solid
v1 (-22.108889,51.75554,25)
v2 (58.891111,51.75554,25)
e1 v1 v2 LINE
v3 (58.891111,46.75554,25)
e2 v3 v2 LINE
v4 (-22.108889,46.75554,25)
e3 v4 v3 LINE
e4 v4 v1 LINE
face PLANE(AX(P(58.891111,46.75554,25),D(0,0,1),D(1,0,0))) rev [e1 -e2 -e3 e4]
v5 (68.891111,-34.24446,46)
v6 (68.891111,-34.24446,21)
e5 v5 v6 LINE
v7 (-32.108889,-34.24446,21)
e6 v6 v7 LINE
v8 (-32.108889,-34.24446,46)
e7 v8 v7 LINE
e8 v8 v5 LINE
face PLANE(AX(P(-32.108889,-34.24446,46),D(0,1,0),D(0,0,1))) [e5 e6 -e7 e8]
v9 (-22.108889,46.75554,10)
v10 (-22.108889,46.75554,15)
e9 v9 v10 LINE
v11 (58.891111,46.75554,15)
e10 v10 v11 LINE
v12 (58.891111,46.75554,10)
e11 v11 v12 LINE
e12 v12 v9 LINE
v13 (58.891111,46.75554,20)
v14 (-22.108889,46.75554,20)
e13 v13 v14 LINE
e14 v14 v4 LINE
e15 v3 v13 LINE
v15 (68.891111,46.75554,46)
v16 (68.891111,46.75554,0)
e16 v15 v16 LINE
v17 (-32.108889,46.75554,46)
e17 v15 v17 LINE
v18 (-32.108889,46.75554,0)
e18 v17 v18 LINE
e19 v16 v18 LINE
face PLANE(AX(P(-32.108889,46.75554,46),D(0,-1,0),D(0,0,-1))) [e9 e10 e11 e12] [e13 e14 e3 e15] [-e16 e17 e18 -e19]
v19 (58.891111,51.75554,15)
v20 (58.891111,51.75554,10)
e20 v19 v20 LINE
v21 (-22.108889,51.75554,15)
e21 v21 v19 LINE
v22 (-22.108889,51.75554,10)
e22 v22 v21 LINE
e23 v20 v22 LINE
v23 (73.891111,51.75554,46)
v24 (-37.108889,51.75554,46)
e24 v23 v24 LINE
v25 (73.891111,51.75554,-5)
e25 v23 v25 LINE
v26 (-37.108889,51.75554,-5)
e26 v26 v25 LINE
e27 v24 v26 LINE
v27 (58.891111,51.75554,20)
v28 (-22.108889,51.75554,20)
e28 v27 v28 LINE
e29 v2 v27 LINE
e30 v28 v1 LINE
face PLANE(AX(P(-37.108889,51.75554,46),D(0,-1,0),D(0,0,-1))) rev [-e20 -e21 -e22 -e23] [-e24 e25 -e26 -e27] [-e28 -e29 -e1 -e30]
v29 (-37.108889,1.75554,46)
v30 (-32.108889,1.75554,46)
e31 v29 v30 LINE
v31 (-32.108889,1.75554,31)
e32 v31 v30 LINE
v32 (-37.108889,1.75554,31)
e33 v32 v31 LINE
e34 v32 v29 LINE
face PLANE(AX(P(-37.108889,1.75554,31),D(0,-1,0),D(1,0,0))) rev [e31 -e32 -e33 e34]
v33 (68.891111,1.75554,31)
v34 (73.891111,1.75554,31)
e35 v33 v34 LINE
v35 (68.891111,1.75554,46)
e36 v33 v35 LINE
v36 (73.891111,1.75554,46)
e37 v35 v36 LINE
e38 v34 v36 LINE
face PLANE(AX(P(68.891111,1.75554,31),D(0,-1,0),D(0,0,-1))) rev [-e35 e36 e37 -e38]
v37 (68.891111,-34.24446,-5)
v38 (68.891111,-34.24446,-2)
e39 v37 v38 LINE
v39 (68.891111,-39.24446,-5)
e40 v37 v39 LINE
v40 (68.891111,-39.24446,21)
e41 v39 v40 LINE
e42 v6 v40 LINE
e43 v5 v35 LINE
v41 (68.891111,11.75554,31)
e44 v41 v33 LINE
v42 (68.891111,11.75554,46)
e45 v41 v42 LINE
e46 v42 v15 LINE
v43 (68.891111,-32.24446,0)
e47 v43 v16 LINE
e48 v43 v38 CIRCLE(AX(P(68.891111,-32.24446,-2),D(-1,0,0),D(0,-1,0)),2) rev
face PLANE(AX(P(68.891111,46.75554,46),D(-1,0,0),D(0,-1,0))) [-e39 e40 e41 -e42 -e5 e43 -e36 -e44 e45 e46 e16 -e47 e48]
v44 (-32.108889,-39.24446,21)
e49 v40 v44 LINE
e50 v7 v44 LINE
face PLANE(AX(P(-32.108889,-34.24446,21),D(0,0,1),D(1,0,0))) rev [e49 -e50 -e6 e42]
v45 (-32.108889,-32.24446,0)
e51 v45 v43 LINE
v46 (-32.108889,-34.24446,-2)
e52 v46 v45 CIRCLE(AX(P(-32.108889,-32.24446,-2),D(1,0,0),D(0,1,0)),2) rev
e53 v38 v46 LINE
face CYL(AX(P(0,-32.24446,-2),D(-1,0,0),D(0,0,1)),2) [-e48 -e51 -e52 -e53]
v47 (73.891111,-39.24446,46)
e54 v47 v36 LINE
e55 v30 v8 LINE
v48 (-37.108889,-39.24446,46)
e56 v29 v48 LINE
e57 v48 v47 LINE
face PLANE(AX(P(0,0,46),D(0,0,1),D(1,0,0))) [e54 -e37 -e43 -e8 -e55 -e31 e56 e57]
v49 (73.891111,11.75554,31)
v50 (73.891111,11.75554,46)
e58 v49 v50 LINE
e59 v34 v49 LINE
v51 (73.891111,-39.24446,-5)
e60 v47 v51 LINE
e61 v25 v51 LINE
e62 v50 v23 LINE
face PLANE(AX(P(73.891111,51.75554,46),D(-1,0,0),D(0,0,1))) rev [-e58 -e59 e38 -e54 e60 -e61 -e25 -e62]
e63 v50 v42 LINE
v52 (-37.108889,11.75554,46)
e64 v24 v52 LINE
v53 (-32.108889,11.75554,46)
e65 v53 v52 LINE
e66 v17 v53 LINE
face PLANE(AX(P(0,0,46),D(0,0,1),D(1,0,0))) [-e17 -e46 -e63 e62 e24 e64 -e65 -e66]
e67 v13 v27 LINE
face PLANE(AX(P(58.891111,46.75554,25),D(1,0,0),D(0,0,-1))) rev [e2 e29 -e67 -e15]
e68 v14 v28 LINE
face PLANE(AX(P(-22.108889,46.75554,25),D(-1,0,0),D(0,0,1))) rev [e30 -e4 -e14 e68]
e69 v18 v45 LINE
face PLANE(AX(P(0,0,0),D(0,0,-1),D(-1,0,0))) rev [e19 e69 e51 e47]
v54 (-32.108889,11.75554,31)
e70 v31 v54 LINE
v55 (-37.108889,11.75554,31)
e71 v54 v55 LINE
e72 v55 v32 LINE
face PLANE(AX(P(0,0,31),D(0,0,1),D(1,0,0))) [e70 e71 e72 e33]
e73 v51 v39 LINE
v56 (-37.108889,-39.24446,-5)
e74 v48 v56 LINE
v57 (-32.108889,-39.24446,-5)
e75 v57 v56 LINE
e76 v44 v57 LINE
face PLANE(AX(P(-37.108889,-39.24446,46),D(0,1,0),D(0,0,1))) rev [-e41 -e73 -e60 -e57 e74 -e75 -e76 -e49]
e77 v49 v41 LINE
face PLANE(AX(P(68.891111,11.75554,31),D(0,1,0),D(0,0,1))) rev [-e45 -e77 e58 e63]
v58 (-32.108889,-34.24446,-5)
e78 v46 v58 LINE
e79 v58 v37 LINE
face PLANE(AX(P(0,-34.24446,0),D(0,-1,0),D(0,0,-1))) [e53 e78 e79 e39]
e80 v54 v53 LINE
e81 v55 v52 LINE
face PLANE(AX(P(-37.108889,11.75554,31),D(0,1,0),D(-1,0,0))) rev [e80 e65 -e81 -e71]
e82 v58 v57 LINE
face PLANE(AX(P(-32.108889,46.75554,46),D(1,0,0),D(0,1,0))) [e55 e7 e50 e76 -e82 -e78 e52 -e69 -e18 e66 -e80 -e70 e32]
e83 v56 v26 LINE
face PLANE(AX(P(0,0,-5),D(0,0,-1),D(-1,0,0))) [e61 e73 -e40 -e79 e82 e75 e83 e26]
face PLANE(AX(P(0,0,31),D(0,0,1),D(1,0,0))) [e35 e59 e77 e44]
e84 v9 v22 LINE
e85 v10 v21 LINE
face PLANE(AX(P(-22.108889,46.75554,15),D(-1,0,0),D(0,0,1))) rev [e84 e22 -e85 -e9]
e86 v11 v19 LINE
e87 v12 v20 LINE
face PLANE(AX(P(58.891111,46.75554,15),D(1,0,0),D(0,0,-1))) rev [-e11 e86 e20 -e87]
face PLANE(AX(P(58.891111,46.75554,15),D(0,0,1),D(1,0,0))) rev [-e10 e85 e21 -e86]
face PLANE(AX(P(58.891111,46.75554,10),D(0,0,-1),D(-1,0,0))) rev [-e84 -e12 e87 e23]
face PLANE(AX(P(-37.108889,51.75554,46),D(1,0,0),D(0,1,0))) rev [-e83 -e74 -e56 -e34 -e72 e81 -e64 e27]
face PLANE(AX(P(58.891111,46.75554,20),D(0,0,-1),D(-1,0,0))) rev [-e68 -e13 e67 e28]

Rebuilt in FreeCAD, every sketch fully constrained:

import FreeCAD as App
import Part
import Sketcher

V = App.Vector


def edges_at(feature, points):
    """Names of the edges that pass closest to the given points."""
    edges = feature.Shape.Edges
    near = lambda p: min(range(len(edges)), key=lambda i: edges[i].distToShape(Part.Vertex(*p))[0])
    return sorted({f"Edge{near(p) + 1}" for p in points})


def add_polygon(sketch, points):
    """Adds a closed chain of lines whose ends are joined by coincident constraints."""
    first, n = sketch.GeometryCount, len(points)
    for a, b in zip(points, points[1:] + points[:1]):
        sketch.addGeometry(Part.LineSegment(App.Vector(*a, 0), App.Vector(*b, 0)), False)
    for i in range(n):
        sketch.addConstraint(Sketcher.Constraint("Coincident", first + i, 2, first + (i + 1) % n, 1))

doc = App.newDocument("Part")
body = doc.addObject("PartDesign::Body", "Body")

# Sketch on XY plane
sketch1 = body.newObject("Sketcher::SketchObject", "Sketch")
sketch1.AttachmentSupport = (doc.getObject("XY_Plane"), [""])
sketch1.MapMode = "FlatFace"
add_polygon(sketch1, [(-37, 52), (-37, -39), (74, -39), (74, 52)])  # lines 0-3
add_polygon(sketch1, [(69, -34), (-32, -34), (-32, 47), (69, 47)])  # lines 4-7
sketch1.addConstraint([
    Sketcher.Constraint("Vertical", 0),
    Sketcher.Constraint("Horizontal", 1),
    Sketcher.Constraint("Vertical", 2),
    Sketcher.Constraint("Horizontal", 3),
    Sketcher.Constraint("Horizontal", 4),
    Sketcher.Constraint("Vertical", 5),
    Sketcher.Constraint("Horizontal", 6),
    Sketcher.Constraint("Vertical", 7),
    Sketcher.Constraint("DistanceX", 1, 1, 1, 2, 111.0),
    Sketcher.Constraint("DistanceX", 4, 2, 4, 1, 101.0),
    Sketcher.Constraint("DistanceY", 0, 2, 0, 1, 91.0),
    Sketcher.Constraint("DistanceY", 5, 1, 5, 2, 81.0),
    Sketcher.Constraint("DistanceX", 0, 2, 4, 2, 5.0),
    Sketcher.Constraint("DistanceY", 0, 2, 4, 2, 5.0),
    Sketcher.Constraint("DistanceX", 0, 2, -1, 1, 37.108889),
    Sketcher.Constraint("DistanceY", 0, 2, -1, 1, 39.24446),
])
pad1 = body.newObject("PartDesign::Pad", "Pad")
pad1.Profile = sketch1
pad1.Length = 46

# Sketch on XY plane
sketch2 = body.newObject("Sketcher::SketchObject", "Sketch001")
sketch2.AttachmentSupport = (doc.getObject("XY_Plane"), [""])
sketch2.MapMode = "FlatFace"
add_polygon(sketch2, [(74, 52), (74, -39), (-37, -39), (-37, 52)])  # lines 0-3
sketch2.addConstraint([
    Sketcher.Constraint("Vertical", 0),
    Sketcher.Constraint("Horizontal", 1),
    Sketcher.Constraint("Vertical", 2),
    Sketcher.Constraint("Horizontal", 3),
    Sketcher.Constraint("DistanceX", 1, 2, 1, 1, 111.0),
    Sketcher.Constraint("DistanceY", 0, 2, 0, 1, 91.0),
    Sketcher.Constraint("DistanceX", -1, 1, 0, 2, 73.891111),
    Sketcher.Constraint("DistanceY", 0, 2, -1, 1, 39.24446),
])
pad2 = body.newObject("PartDesign::Pad", "Pad001")
pad2.Profile = sketch2
pad2.Length = 5
pad2.Reversed = True

# Sketch on XZ plane
sketch3 = body.newObject("Sketcher::SketchObject", "Sketch002")
sketch3.AttachmentSupport = (doc.getObject("XZ_Plane"), [""])
sketch3.MapMode = "FlatFace"
sketch3.AttachmentOffset = App.Placement(V(0, 0, 39.24446), App.Rotation())
add_polygon(sketch3, [(-32, 21), (-32, -5), (69, -5), (69, 21)])  # lines 0-3
sketch3.addConstraint([
    Sketcher.Constraint("Vertical", 0),
    Sketcher.Constraint("Horizontal", 1),
    Sketcher.Constraint("Vertical", 2),
    Sketcher.Constraint("Horizontal", 3),
    Sketcher.Constraint("DistanceX", 1, 1, 1, 2, 101.0),
    Sketcher.Constraint("DistanceY", 0, 2, 0, 1, 26.0),
    Sketcher.Constraint("DistanceY", 0, 2, -1, 1, 5.0),
    Sketcher.Constraint("DistanceX", 0, 2, -1, 1, 32.108889),
])
pocket1 = body.newObject("PartDesign::Pocket", "Pocket")
pocket1.Profile = sketch3
pocket1.Length = 5
doc.recompute()

fillet = body.newObject("PartDesign::Fillet", "Fillet")
fillet.Base = (pocket1, edges_at(pocket1, [(18.391, -34.244, 0)]))
fillet.Radius = 2

# Sketch on XY plane
sketch4 = body.newObject("Sketcher::SketchObject", "Sketch003")
sketch4.AttachmentSupport = (doc.getObject("XY_Plane"), [""])
sketch4.MapMode = "FlatFace"
sketch4.AttachmentOffset = App.Placement(V(0, 0, 46), App.Rotation())
add_polygon(sketch4, [(-37, 12), (-37, 2), (-32, 2), (-32, 12)])  # lines 0-3
add_polygon(sketch4, [(69, 12), (69, 2), (74, 2), (74, 12)])  # lines 4-7
sketch4.addConstraint([
    Sketcher.Constraint("Vertical", 0),
    Sketcher.Constraint("Horizontal", 1),
    Sketcher.Constraint("Vertical", 2),
    Sketcher.Constraint("Horizontal", 3),
    Sketcher.Constraint("Vertical", 4),
    Sketcher.Constraint("Horizontal", 5),
    Sketcher.Constraint("Vertical", 6),
    Sketcher.Constraint("Horizontal", 7),
    Sketcher.Constraint("Horizontal", 1, 2, 4, 2),
    Sketcher.Constraint("Horizontal", 3, 2, 6, 2),
    Sketcher.Constraint("Equal", 3, 5),
    Sketcher.Constraint("DistanceX", 1, 1, 1, 2, 5.0),
    Sketcher.Constraint("DistanceY", 0, 2, 0, 1, 10.0),
    Sketcher.Constraint("DistanceX", 1, 2, 4, 2, 101.0),
    Sketcher.Constraint("DistanceX", 0, 2, -1, 1, 37.108889),
    Sketcher.Constraint("DistanceY", -1, 1, 0, 2, 1.75554),
])
pocket2 = body.newObject("PartDesign::Pocket", "Pocket001")
pocket2.Profile = sketch4
pocket2.Length = 15

# Sketch on XZ plane
sketch5 = body.newObject("Sketcher::SketchObject", "Sketch004")
sketch5.AttachmentSupport = (doc.getObject("XZ_Plane"), [""])
sketch5.MapMode = "FlatFace"
sketch5.AttachmentOffset = App.Placement(V(0, 0, -51.75554), App.Rotation())
add_polygon(sketch5, [(-22, 20), (-22, 25), (59, 25), (59, 20)])  # lines 0-3
add_polygon(sketch5, [(-22, 10), (-22, 15), (59, 15), (59, 10)])  # lines 4-7
sketch5.addConstraint([
    Sketcher.Constraint("Vertical", 0),
    Sketcher.Constraint("Horizontal", 1),
    Sketcher.Constraint("Vertical", 2),
    Sketcher.Constraint("Horizontal", 3),
    Sketcher.Constraint("Vertical", 4),
    Sketcher.Constraint("Horizontal", 5),
    Sketcher.Constraint("Vertical", 6),
    Sketcher.Constraint("Horizontal", 7),
    Sketcher.Constraint("Vertical", 3, 2, 4, 2),
    Sketcher.Constraint("Vertical", 2, 2, 5, 2),
    Sketcher.Constraint("Equal", 2, 4),
    Sketcher.Constraint("DistanceX", 1, 1, 1, 2, 81.0),
    Sketcher.Constraint("DistanceY", 0, 1, 0, 2, 5.0),
    Sketcher.Constraint("DistanceY", -1, 1, 0, 2, 25.0),
    Sketcher.Constraint("DistanceY", -1, 1, 4, 2, 15.0),
    Sketcher.Constraint("DistanceX", 0, 2, -1, 1, 22.108889),
])
pocket3 = body.newObject("PartDesign::Pocket", "Pocket002")
pocket3.Profile = sketch5
pocket3.Length = 5
pocket3.Reversed = True

doc.recompute()
